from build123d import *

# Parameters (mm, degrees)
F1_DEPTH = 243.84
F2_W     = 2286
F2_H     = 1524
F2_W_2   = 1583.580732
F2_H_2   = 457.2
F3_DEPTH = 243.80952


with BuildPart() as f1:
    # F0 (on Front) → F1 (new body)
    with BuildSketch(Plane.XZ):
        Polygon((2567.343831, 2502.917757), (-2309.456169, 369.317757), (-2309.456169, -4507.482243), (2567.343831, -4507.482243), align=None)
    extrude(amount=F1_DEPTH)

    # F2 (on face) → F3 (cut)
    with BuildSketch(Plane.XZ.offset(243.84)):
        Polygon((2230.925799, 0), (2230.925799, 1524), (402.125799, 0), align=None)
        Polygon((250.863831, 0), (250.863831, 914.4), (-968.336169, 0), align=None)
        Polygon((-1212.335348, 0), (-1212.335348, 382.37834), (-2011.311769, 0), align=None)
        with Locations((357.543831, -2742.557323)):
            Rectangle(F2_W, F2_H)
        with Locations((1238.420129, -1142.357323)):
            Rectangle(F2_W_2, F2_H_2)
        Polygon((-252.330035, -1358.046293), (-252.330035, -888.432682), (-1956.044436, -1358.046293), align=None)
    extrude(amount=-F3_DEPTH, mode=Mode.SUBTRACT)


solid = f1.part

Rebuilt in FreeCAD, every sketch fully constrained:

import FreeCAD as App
import Part
import Sketcher
Q = App.Units.Quantity


def add_polygon(sketch, points):
    """Adds a closed chain of lines whose ends are joined by coincident constraints."""
    first, n = sketch.GeometryCount, len(points)
    for a, b in zip(points, points[1:] + points[:1]):
        sketch.addGeometry(Part.LineSegment(App.Vector(*a, 0), App.Vector(*b, 0)), False)
    for i in range(n):
        sketch.addConstraint(Sketcher.Constraint("Coincident", first + i, 2, first + (i + 1) % n, 1))

doc = App.newDocument("Part")
body = doc.addObject("PartDesign::Body", "Body")

# Sketch on XZ plane
sketch1 = body.newObject("Sketcher::SketchObject", "Sketch")
sketch1.AttachmentSupport = (doc.getObject("XZ_Plane"), [""])
sketch1.MapMode = "FlatFace"
add_polygon(sketch1, [(2567, 2503), (-2309, 369), (-2309, -4507), (2567, -4507)])  # lines 0-3
sketch1.addConstraint([
    Sketcher.Constraint("Vertical", 1),
    Sketcher.Constraint("Horizontal", 2),
    Sketcher.Constraint("Vertical", 3),
    Sketcher.Constraint("Equal", 2, 1),
    Sketcher.Constraint("DistanceX", 2, 1, 2, 2, Q("192 in")),
    Sketcher.Constraint("DistanceY", 3, 1, 3, 2, Q("276 in")),
    Sketcher.Constraint("DistanceX", 0, 2, -1, 1, 2309.456169),
    Sketcher.Constraint("DistanceY", -1, 1, 0, 2, 369.317757),
])
pad1 = body.newObject("PartDesign::Pad", "Pad")
pad1.Profile = sketch1
pad1.Length = Q("9.6 in")

# Sketch on XZ plane
sketch2 = body.newObject("Sketcher::SketchObject", "Sketch001")
sketch2.AttachmentSupport = (doc.getObject("XZ_Plane"), [""])
sketch2.MapMode = "FlatFace"
sketch2.AttachmentOffset = App.Placement(App.Vector(0, 0, 9.6 * 25.4), App.Rotation())
add_polygon(sketch2, [(2231, 0), (2231, 1524), (402, 0)])  # lines 0-2
add_polygon(sketch2, [(251, 0), (251, 914), (-968, 0)])  # lines 3-5
add_polygon(sketch2, [(-1212, 0), (-1212, 382), (-2011, 0)])  # lines 6-8
add_polygon(sketch2, [(-785, -1981), (-785, -3505), (1501, -3505), (1501, -1981)])  # lines 9-12
add_polygon(sketch2, [(447, -914), (447, -1371), (2030, -1371), (2030, -914)])  # lines 13-16
add_polygon(sketch2, [(-252, -1358), (-252, -888), (-1956, -1358)])  # lines 17-19
sketch2.addConstraint([
    Sketcher.Constraint("Vertical", 0),
    Sketcher.Constraint("Horizontal", 2),
    Sketcher.Constraint("Vertical", 3),
    Sketcher.Constraint("Horizontal", 5),
    Sketcher.Constraint("Vertical", 6),
    Sketcher.Constraint("Horizontal", 8),
    Sketcher.Constraint("Vertical", 9),
    Sketcher.Constraint("Horizontal", 10),
    Sketcher.Constraint("Vertical", 11),
    Sketcher.Constraint("Horizontal", 12),
    Sketcher.Constraint("Vertical", 13),
    Sketcher.Constraint("Horizontal", 14),
    Sketcher.Constraint("Vertical", 15),
    Sketcher.Constraint("Horizontal", 16),
    Sketcher.Constraint("Vertical", 17),
    Sketcher.Constraint("Horizontal", 19),
    Sketcher.Constraint("PointOnObject", 1, 2, -1),
    Sketcher.Constraint("PointOnObject", 4, 2, -1),
    Sketcher.Constraint("PointOnObject", 7, 2, -1),
    Sketcher.Constraint("Equal", 0, 9),
    Sketcher.Constraint("DistanceX", 2, 1, 2, 2, Q("72 in")),
    Sketcher.Constraint("DistanceX", 5, 1, 5, 2, Q("48 in")),
    Sketcher.Constraint("DistanceX", 10, 1, 10, 2, Q("90 in")),
    Sketcher.Constraint("DistanceY", 0, 1, 0, 2, Q("60 in")),
    Sketcher.Constraint("DistanceY", 3, 1, 3, 2, Q("36 in")),
    Sketcher.Constraint("DistanceY", 13, 2, 13, 1, Q("18 in")),
    Sketcher.Constraint("DistanceY", 11, 2, 13, 2, Q("24 in")),
    Sketcher.Constraint("DistanceX", 4, 2, 9, 2, Q("7.2 in")),
    Sketcher.Constraint("DistanceX", 19, 1, 19, 2, 1703.714401),
    Sketcher.Constraint("DistanceX", 8, 1, 8, 2, 798.976421),
    Sketcher.Constraint("DistanceX", 14, 1, 14, 2, 1583.580732),
    Sketcher.Constraint("DistanceY", 6, 1, 6, 2, 382.37834),
    Sketcher.Constraint("DistanceY", 17, 1, 17, 2, 469.613611),
    Sketcher.Constraint("DistanceX", -1, 1, 0, 2, 2230.925799),
    Sketcher.Constraint("DistanceX", 7, 2, 4, 2, 1042.9756),
    Sketcher.Constraint("DistanceX", 17, 2, 16, 2, 698.959798),
    Sketcher.Constraint("DistanceX", -1, 1, 3, 2, 250.863831),
    Sketcher.Constraint("DistanceY", 17, 2, -1, 1, 888.432682),
    Sketcher.Constraint("DistanceX", 13, 2, 11, 2, 1053.914068),
    Sketcher.Constraint("DistanceY", 16, 2, 17, 2, 25.324641),
])
pocket1 = body.newObject("PartDesign::Pocket", "Pocket")
pocket1.Profile = sketch2
pocket1.Length = Q("9.5988 in")

doc.recompute()
